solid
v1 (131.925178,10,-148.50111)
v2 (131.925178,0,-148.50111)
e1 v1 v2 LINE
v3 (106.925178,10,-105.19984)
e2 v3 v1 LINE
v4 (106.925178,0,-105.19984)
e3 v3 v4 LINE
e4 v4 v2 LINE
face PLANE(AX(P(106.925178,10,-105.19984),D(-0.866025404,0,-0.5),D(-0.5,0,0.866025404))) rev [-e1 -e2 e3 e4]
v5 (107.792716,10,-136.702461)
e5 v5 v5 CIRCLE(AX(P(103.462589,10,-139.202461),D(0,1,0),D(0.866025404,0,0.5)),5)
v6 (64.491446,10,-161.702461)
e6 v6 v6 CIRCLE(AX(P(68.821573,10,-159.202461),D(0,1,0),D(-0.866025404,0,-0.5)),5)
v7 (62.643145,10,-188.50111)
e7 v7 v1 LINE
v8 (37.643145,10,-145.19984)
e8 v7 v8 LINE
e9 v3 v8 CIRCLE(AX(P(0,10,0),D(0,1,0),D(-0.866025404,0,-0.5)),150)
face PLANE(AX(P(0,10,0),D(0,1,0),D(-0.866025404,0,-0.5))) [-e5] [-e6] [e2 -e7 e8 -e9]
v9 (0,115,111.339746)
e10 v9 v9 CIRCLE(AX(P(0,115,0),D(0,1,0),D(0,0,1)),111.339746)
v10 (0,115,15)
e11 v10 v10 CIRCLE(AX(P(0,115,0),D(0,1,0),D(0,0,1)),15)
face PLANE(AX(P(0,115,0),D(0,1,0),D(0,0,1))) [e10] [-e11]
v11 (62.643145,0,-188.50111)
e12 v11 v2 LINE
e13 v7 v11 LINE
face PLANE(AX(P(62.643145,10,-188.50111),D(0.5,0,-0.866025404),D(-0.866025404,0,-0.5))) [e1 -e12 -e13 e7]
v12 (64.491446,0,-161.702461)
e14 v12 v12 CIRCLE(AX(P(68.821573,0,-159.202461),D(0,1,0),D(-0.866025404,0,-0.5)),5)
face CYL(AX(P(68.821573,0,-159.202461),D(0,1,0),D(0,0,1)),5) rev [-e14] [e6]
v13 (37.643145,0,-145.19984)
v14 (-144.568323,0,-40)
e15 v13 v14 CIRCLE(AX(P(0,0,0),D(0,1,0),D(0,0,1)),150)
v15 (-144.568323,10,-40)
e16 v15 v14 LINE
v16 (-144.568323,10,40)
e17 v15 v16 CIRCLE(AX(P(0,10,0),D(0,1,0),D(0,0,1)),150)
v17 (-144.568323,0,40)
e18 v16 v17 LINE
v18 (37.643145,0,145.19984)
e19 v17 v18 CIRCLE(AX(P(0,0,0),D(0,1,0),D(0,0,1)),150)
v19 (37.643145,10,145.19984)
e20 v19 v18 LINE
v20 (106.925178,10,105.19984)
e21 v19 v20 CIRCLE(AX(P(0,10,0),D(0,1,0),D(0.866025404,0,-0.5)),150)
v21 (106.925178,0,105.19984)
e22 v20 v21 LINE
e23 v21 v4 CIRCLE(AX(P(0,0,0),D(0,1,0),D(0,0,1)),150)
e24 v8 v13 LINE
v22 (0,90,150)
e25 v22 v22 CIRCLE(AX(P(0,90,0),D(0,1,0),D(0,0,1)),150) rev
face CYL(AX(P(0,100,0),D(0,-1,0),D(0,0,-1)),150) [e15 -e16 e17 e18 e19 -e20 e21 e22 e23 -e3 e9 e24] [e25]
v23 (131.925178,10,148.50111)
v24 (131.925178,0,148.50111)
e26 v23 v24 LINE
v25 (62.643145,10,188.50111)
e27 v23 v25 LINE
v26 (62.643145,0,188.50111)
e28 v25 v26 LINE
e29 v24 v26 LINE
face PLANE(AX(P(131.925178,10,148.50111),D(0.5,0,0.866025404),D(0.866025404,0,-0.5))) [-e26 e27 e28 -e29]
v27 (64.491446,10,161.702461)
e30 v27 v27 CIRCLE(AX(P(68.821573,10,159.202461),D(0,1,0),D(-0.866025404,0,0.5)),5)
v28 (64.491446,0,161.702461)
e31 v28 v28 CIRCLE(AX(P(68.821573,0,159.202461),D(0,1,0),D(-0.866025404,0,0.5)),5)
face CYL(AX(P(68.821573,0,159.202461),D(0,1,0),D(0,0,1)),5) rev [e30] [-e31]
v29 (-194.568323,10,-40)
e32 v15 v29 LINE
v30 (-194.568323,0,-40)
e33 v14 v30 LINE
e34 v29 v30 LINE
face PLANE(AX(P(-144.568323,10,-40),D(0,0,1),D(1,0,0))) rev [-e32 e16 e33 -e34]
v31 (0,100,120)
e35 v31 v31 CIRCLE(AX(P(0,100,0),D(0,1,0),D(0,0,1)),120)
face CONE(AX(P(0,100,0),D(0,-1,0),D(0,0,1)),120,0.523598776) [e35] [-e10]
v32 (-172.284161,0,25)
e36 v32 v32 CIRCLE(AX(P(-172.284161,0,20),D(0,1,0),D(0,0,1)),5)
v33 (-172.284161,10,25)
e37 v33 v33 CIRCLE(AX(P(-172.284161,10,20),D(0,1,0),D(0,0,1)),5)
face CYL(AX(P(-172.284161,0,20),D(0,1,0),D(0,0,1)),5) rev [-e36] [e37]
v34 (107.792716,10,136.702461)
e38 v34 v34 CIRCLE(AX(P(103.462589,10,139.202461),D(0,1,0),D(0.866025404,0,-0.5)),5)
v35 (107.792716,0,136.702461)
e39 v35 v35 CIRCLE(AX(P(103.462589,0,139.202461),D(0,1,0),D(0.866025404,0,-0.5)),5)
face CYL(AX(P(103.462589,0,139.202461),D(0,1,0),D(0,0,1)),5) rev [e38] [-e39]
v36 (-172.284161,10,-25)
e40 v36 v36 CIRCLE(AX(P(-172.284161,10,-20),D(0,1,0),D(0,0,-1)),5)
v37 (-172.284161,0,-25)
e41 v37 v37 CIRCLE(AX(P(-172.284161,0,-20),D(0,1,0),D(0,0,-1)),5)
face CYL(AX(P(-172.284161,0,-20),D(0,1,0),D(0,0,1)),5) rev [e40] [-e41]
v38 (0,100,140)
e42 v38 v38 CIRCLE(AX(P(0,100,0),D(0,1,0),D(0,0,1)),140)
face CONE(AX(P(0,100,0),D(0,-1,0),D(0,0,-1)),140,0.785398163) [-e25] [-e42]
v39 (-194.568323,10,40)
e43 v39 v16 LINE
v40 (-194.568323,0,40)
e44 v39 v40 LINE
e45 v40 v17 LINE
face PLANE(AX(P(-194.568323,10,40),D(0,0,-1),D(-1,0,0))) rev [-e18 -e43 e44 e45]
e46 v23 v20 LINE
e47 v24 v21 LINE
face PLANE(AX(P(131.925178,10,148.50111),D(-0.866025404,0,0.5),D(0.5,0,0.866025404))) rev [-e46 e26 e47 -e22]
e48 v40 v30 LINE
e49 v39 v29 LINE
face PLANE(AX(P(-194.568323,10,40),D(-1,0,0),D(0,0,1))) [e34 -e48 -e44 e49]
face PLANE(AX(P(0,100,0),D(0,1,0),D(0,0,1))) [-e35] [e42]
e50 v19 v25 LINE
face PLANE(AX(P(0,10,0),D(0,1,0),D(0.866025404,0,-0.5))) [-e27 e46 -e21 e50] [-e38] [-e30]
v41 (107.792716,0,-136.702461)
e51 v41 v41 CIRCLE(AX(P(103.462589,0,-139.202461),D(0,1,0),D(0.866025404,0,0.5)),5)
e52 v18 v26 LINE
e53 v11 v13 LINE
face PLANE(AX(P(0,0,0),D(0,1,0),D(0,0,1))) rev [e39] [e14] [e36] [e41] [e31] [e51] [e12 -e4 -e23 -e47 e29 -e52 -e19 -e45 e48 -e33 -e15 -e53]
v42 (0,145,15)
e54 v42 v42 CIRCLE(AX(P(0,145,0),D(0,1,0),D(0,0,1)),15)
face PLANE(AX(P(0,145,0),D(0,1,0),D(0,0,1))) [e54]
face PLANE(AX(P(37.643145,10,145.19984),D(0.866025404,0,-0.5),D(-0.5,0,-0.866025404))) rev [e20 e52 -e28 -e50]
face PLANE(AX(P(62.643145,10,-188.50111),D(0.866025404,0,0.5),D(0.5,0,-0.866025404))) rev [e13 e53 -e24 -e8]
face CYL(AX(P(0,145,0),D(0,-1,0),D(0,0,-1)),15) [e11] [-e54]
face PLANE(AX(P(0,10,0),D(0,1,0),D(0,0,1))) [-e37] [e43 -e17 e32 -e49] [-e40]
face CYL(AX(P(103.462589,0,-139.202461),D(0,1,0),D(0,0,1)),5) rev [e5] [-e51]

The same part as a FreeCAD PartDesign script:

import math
import FreeCAD as App
import Part
import Sketcher
from FreeCAD import Vector
Q = App.Units.Quantity


def edges_at(feature, points):
    """Names of the edges that pass closest to the given points."""
    edges = feature.Shape.Edges
    near = lambda p: min(range(len(edges)), key=lambda i: edges[i].distToShape(Part.Vertex(*p))[0])
    return sorted({f"Edge{near(p) + 1}" for p in points})

doc = App.newDocument("Part")
params = doc.addObject("Spreadsheet::Sheet", "Params")
for row, (alias, value) in enumerate([
    ("sketch1_diameter", "300 mm"),
    ("pad1_length", "100 mm"),
    ("chamfer_size", "10 mm"),
    ("sketch2_radius", "150 mm"),
    ("sketch2_width", "50 mm"),
    ("sketch2_height", "80 mm"),
    ("pad2_length", "10 mm"),
    ("sketch3_diameter", "10 mm"),
    ("pocket1_length", "10 mm"),
    ("sketch4_diameter", "240 mm"),
    ("pad3_length", "15 mm"),
    ("pad3_taper", "-30 deg"),
    ("sketch5_diameter", "30 mm"),
    ("pad4_length", "30 mm"),
], start=1):
    params.set(f"A{row}", alias)
    params.set(f"B{row}", "=" + value)
    params.setAlias(f"B{row}", alias)

body = doc.addObject("PartDesign::Body", "Body")

# Sketch on XZ plane
sketch1 = doc.addObject("Sketcher::SketchObject", "Sketch")
body.addObject(sketch1)
sketch1.AttachmentSupport = (doc.XZ_Plane, [""])
sketch1.MapMode = "FlatFace"
sketch1.addGeometry(Part.Circle(Vector(0, 0, 0), Vector(0, 0, 1), 150), False)
sketch1.addConstraint(Sketcher.Constraint("Coincident", 0, 3, -1, 1))
sketch1.addConstraint(Sketcher.Constraint("Diameter", 0, Q("300 mm")))
sketch1.setExpression("Constraints[1]", "Params.sketch1_diameter")
pad1 = doc.addObject("PartDesign::Pad", "Pad")
body.addObject(pad1)
pad1.Profile = sketch1
pad1.setExpression("Length", "Params.pad1_length")
pad1.Reversed = True
doc.recompute()

chamfer = doc.addObject("PartDesign::Chamfer", "Chamfer")
body.addObject(chamfer)
chamfer.Base = (pad1, edges_at(pad1, [(-150, 100, 0)]))
chamfer.setExpression("Size", "Params.chamfer_size")

# Sketch on XZ plane
sketch2 = doc.addObject("Sketcher::SketchObject", "Sketch001")
body.addObject(sketch2)
sketch2.AttachmentSupport = (doc.XZ_Plane, [""])
sketch2.MapMode = "FlatFace"
sketch2.addGeometry(Part.LineSegment(Vector(-195, -40, 0), Vector(-195, 40, 0)), False)
sketch2.addGeometry(Part.LineSegment(Vector(-195, 40, 0), Vector(-145, 40, 0)), False)
sketch2.addGeometry(Part.ArcOfCircle(Part.Circle(Vector(0, 0, 0), Vector(0, 0, 1), 150), math.radians(165), math.radians(195)), False)
sketch2.addGeometry(Part.LineSegment(Vector(-145, -40, 0), Vector(-195, -40, 0)), False)
sketch2.addConstraint(Sketcher.Constraint("Coincident", 0, 2, 1, 1))
sketch2.addConstraint(Sketcher.Constraint("Coincident", 1, 2, 2, 1))
sketch2.addConstraint(Sketcher.Constraint("Coincident", 2, 2, 3, 1))
sketch2.addConstraint(Sketcher.Constraint("Coincident", 3, 2, 0, 1))
sketch2.addConstraint(Sketcher.Constraint("Vertical", 0))
sketch2.addConstraint(Sketcher.Constraint("Horizontal", 1))
sketch2.addConstraint(Sketcher.Constraint("Horizontal", 3))
sketch2.addConstraint(Sketcher.Constraint("Coincident", 2, 3, -1, 1))
sketch2.addConstraint(Sketcher.Constraint("Vertical", 1, 2, 2, 2))
sketch2.addConstraint(Sketcher.Constraint("Radius", 2, Q("150 mm")))
sketch2.addConstraint(Sketcher.Constraint("DistanceX", 1, 1, 1, 2, Q("50 mm")))
sketch2.addConstraint(Sketcher.Constraint("DistanceY", 0, 1, 0, 2, Q("80 mm")))
sketch2.setExpression("Constraints[9]", "Params.sketch2_radius")
sketch2.setExpression("Constraints[10]", "Params.sketch2_width")
sketch2.setExpression("Constraints[11]", "Params.sketch2_height")
pad2 = doc.addObject("PartDesign::Pad", "Pad001")
body.addObject(pad2)
pad2.Profile = sketch2
pad2.setExpression("Length", "Params.pad2_length")
pad2.Reversed = True

# Sketch on XZ plane
sketch3 = doc.addObject("Sketcher::SketchObject", "Sketch002")
body.addObject(sketch3)
sketch3.AttachmentSupport = (doc.XZ_Plane, [""])
sketch3.MapMode = "FlatFace"
sketch3.AttachmentOffset = App.Placement(Vector(0, 0, -10), App.Rotation())
sketch3.addGeometry(Part.Circle(Vector(-172, 20, 0), Vector(0, 0, 1), 5), False)
sketch3.addGeometry(Part.Circle(Vector(-172, -20, 0), Vector(0, 0, 1), 5), False)
sketch3.addConstraint(Sketcher.Constraint("Equal", 0, 1))
sketch3.addConstraint(Sketcher.Constraint("Symmetric", 0, 3, 1, 3, -1))
sketch3.addConstraint(Sketcher.Constraint("Diameter", 0, Q("10 mm")))
sketch3.addConstraint(Sketcher.Constraint("DistanceY", -1, 1, 0, 3, Q("20 mm")))
sketch3.addConstraint(Sketcher.Constraint("DistanceX", 0, 3, -1, 1, Q("172.284161 mm")))
sketch3.setExpression("Constraints[2]", "Params.sketch3_diameter")
pocket1 = doc.addObject("PartDesign::Pocket", "Pocket")
body.addObject(pocket1)
pocket1.Profile = sketch3
pocket1.setExpression("Length", "Params.pocket1_length")
pocket1.Reversed = True
doc.recompute()

polarpattern = doc.addObject("PartDesign::PolarPattern", "PolarPattern")
body.addObject(polarpattern)
polarpattern.Originals = [pad2, pocket1]
polarpattern.Axis = (doc.Y_Axis, [""])
polarpattern.Angle = 360
polarpattern.Occurrences = 3
body.Tip = polarpattern

# Sketch on XZ plane
sketch4 = doc.addObject("Sketcher::SketchObject", "Sketch003")
body.addObject(sketch4)
sketch4.AttachmentSupport = (doc.XZ_Plane, [""])
sketch4.MapMode = "FlatFace"
sketch4.AttachmentOffset = App.Placement(Vector(0, 0, -100), App.Rotation())
sketch4.addGeometry(Part.Circle(Vector(0, 0, 0), Vector(0, 0, 1), 120), False)
sketch4.addConstraint(Sketcher.Constraint("Coincident", 0, 3, -1, 1))
sketch4.addConstraint(Sketcher.Constraint("Diameter", 0, Q("240 mm")))
sketch4.setExpression("Constraints[1]", "Params.sketch4_diameter")
pad3 = doc.addObject("PartDesign::Pad", "Pad002")
body.addObject(pad3)
pad3.Profile = sketch4
pad3.setExpression("Length", "Params.pad3_length")
pad3.Reversed = True
pad3.setExpression("TaperAngle", "Params.pad3_taper")

# Sketch on XZ plane
sketch5 = doc.addObject("Sketcher::SketchObject", "Sketch004")
body.addObject(sketch5)
sketch5.AttachmentSupport = (doc.XZ_Plane, [""])
sketch5.MapMode = "FlatFace"
sketch5.AttachmentOffset = App.Placement(Vector(0, 0, -115), App.Rotation())
sketch5.addGeometry(Part.Circle(Vector(0, 0, 0), Vector(0, 0, 1), 15), False)
sketch5.addConstraint(Sketcher.Constraint("Coincident", 0, 3, -1, 1))
sketch5.addConstraint(Sketcher.Constraint("Diameter", 0, Q("30 mm")))
sketch5.setExpression("Constraints[1]", "Params.sketch5_diameter")
pad4 = doc.addObject("PartDesign::Pad", "Pad003")
body.addObject(pad4)
pad4.Profile = sketch5
pad4.setExpression("Length", "Params.pad4_length")
pad4.Reversed = True

doc.recompute()
